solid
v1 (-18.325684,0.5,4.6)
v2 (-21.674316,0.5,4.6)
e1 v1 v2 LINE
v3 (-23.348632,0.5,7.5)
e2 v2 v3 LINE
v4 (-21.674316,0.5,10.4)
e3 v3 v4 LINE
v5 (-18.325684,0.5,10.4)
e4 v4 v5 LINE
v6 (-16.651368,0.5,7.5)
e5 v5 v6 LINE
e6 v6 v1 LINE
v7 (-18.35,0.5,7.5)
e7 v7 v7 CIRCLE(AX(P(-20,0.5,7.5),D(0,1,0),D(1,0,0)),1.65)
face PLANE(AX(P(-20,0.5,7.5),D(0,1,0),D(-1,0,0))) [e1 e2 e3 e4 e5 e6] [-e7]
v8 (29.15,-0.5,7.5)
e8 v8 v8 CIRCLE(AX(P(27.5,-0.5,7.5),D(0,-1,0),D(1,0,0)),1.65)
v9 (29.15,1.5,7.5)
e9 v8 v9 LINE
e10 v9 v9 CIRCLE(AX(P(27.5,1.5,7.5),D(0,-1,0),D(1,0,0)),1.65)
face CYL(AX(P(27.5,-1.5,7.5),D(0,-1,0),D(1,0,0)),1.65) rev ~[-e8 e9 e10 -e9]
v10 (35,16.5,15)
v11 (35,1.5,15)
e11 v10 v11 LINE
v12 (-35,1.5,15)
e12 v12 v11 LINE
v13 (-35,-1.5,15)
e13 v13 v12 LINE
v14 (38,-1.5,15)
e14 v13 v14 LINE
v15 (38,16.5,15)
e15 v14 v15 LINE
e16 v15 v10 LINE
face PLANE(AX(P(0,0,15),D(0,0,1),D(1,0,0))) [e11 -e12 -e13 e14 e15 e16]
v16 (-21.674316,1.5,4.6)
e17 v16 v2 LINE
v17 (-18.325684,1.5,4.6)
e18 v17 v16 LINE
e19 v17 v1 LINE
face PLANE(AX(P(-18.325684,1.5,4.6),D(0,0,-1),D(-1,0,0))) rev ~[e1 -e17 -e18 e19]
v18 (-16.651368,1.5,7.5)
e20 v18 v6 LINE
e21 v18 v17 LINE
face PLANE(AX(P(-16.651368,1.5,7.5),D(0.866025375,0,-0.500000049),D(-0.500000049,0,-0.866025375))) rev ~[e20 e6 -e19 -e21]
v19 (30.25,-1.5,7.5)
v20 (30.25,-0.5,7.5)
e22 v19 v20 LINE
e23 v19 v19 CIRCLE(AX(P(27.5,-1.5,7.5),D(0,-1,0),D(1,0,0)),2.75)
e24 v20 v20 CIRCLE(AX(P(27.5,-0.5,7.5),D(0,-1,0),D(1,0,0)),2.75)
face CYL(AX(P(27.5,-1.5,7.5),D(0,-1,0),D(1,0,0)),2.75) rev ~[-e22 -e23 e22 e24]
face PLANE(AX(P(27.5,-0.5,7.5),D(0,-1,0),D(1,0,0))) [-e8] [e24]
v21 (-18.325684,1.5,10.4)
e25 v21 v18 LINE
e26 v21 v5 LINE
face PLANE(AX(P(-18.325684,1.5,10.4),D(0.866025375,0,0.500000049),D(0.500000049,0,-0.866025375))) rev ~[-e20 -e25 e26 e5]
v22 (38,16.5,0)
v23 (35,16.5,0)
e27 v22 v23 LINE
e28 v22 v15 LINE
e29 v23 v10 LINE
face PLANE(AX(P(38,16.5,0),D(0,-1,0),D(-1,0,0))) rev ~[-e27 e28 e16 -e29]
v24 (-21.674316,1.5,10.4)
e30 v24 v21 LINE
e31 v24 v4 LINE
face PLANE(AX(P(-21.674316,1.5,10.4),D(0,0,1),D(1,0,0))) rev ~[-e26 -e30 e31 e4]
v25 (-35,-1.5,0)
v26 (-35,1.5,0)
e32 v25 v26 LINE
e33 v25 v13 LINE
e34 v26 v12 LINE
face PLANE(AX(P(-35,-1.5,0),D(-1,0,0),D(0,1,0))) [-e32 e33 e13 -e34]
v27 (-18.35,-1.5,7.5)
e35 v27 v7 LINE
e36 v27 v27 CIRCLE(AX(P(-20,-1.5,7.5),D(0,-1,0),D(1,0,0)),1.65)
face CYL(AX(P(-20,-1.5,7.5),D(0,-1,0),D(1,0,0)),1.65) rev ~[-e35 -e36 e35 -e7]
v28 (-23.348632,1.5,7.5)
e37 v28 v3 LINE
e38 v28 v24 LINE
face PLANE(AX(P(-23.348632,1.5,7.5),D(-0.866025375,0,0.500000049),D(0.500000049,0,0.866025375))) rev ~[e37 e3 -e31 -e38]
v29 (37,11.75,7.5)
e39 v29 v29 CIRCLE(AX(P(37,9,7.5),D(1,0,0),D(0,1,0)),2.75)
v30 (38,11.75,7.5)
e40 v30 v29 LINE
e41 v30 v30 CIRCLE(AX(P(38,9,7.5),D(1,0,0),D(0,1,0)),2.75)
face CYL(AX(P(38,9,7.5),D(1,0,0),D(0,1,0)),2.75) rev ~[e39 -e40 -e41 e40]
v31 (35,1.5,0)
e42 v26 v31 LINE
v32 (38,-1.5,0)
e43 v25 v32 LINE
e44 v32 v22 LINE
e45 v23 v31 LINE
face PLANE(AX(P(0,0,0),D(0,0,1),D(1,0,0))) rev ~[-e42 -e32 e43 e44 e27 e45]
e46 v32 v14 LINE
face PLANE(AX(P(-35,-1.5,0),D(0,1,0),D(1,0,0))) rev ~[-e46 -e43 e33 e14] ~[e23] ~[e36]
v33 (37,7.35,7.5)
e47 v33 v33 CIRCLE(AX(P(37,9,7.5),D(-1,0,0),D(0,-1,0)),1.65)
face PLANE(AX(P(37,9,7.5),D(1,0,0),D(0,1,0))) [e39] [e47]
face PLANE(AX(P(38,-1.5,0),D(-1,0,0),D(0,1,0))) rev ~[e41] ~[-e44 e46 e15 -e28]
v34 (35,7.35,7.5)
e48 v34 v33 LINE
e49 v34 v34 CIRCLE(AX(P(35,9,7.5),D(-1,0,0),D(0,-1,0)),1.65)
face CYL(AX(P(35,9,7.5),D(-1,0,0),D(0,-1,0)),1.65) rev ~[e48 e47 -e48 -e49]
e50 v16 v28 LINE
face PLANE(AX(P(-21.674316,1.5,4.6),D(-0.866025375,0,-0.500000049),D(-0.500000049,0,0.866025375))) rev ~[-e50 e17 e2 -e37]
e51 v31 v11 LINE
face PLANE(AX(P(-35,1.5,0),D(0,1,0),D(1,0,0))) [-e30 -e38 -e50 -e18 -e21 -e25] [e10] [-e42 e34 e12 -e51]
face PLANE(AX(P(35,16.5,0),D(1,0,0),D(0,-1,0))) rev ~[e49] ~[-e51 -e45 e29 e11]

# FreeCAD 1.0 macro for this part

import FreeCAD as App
import Part
import Sketcher

V = App.Vector
Q = App.Units.Quantity

doc = App.newDocument("Part")
body = doc.addObject("PartDesign::Body", "Body")

# Sketch on XY plane
sketch1 = body.newObject("Sketcher::SketchObject", "Sketch")
sketch1.AttachmentSupport = (doc.getObject("XY_Plane"), [""])
sketch1.MapMode = "FlatFace"
sketch1.addGeometry([
    Part.LineSegment(V(-35, 1.5, 0), V(-35, -1.5, 0)),  # 0
    Part.LineSegment(V(-35, -1.5, 0), V(38, -1.5, 0)),  # 1
    Part.LineSegment(V(38, -1.5, 0), V(38, 16.5, 0)),  # 2
    Part.LineSegment(V(38, 16.5, 0), V(35, 16.5, 0)),  # 3
    Part.LineSegment(V(35, 16.5, 0), V(35, 1.5, 0)),  # 4
    Part.LineSegment(V(35, 1.5, 0), V(-35, 1.5, 0)),  # 5
], False)
sketch1.addConstraint([
    Sketcher.Constraint("Coincident", 0, 2, 1, 1),
    Sketcher.Constraint("Coincident", 1, 2, 2, 1),
    Sketcher.Constraint("Coincident", 2, 2, 3, 1),
    Sketcher.Constraint("Coincident", 3, 2, 4, 1),
    Sketcher.Constraint("Coincident", 4, 2, 5, 1),
    Sketcher.Constraint("Coincident", 5, 2, 0, 1),
    Sketcher.Constraint("Vertical", 0),
    Sketcher.Constraint("Horizontal", 1),
    Sketcher.Constraint("Vertical", 2),
    Sketcher.Constraint("Horizontal", 3),
    Sketcher.Constraint("Vertical", 4),
    Sketcher.Constraint("Horizontal", 5),
    Sketcher.Constraint("Symmetric", 0, 2, 4, 2, -1, 1),
    Sketcher.Constraint("Equal", 3, 0),
    Sketcher.Constraint("DistanceX", 1, 1, 1, 2, Q("73 mm")),
    Sketcher.Constraint("DistanceX", 3, 2, 3, 1, Q("3 mm")),
    Sketcher.Constraint("DistanceY", 2, 1, 2, 2, Q("18 mm")),
])
pad1 = body.newObject("PartDesign::Pad", "Pad")
pad1.Profile = sketch1
pad1.Length = 15

# Sketch on YZ plane
sketch2 = body.newObject("Sketcher::SketchObject", "Sketch001")
sketch2.AttachmentSupport = (doc.getObject("YZ_Plane"), [""])
sketch2.MapMode = "FlatFace"
sketch2.AttachmentOffset = App.Placement(V(0, 0, 35), App.Rotation())
sketch2.addGeometry(Part.Circle(V(9, 7.5, 0), V(0, 0, 1), 1.65), False)
sketch2.addConstraint([
    Sketcher.Constraint("Diameter", 0, Q("3.3 mm")),
    Sketcher.Constraint("DistanceX", -1, 1, 0, 3, Q("9 mm")),
    Sketcher.Constraint("DistanceY", -1, 1, 0, 3, Q("7.5 mm")),
])
pocket1 = body.newObject("PartDesign::Pocket", "Pocket")
pocket1.Profile = sketch2
pocket1.Length = 25
pocket1.Reversed = True

# Sketch on YZ plane
sketch3 = body.newObject("Sketcher::SketchObject", "Sketch002")
sketch3.AttachmentSupport = (doc.getObject("YZ_Plane"), [""])
sketch3.MapMode = "FlatFace"
sketch3.AttachmentOffset = App.Placement(V(0, 0, 38), App.Rotation())
sketch3.addGeometry(Part.Circle(V(9, 7.5, 0), V(0, 0, 1), 2.75), False)
sketch3.addConstraint([
    Sketcher.Constraint("Diameter", 0, Q("5.5 mm")),
    Sketcher.Constraint("DistanceX", -1, 1, 0, 3, Q("9 mm")),
    Sketcher.Constraint("DistanceY", -1, 1, 0, 3, Q("7.5 mm")),
])
pocket2 = body.newObject("PartDesign::Pocket", "Pocket001")
pocket2.Profile = sketch3
pocket2.Length = 1

# Sketch on XZ plane
sketch4 = body.newObject("Sketcher::SketchObject", "Sketch003")
sketch4.AttachmentSupport = (doc.getObject("XZ_Plane"), [""])
sketch4.MapMode = "FlatFace"
sketch4.AttachmentOffset = App.Placement(V(0, 0, 1.5), App.Rotation())
sketch4.addGeometry(Part.Circle(V(-20, 7.5, 0), V(0, 0, 1), 1.65), False)
sketch4.addConstraint([
    Sketcher.Constraint("Diameter", 0, Q("3.3 mm")),
    Sketcher.Constraint("DistanceX", 0, 3, -1, 1, Q("20 mm")),
    Sketcher.Constraint("DistanceY", -1, 1, 0, 3, Q("7.5 mm")),
])
pocket3 = body.newObject("PartDesign::Pocket", "Pocket002")
pocket3.Profile = sketch4
pocket3.Type = "ThroughAll"

# Sketch on XZ plane
sketch5 = body.newObject("Sketcher::SketchObject", "Sketch004")
sketch5.AttachmentSupport = (doc.getObject("XZ_Plane"), [""])
sketch5.MapMode = "FlatFace"
sketch5.AttachmentOffset = App.Placement(V(0, 0, 1.5), App.Rotation())
sketch5.addGeometry(Part.Circle(V(27.5, 7.5, 0), V(0, 0, 1), 1.65), False)
sketch5.addConstraint([
    Sketcher.Constraint("Diameter", 0, Q("3.3 mm")),
    Sketcher.Constraint("DistanceX", -1, 1, 0, 3, Q("27.5 mm")),
    Sketcher.Constraint("DistanceY", -1, 1, 0, 3, Q("7.5 mm")),
])
pocket4 = body.newObject("PartDesign::Pocket", "Pocket003")
pocket4.Profile = sketch5
pocket4.Type = "ThroughAll"

# Sketch on XZ plane
sketch6 = body.newObject("Sketcher::SketchObject", "Sketch005")
sketch6.AttachmentSupport = (doc.getObject("XZ_Plane"), [""])
sketch6.MapMode = "FlatFace"
sketch6.AttachmentOffset = App.Placement(V(0, 0, 1.5), App.Rotation())
sketch6.addGeometry([
    Part.Circle(V(27.5, 7.5, 0), V(0, 0, 1), 2.75),
    Part.Circle(V(27.5, 7.5, 0), V(0, 0, 1), 1.65),
], False)
sketch6.addConstraint([
    Sketcher.Constraint("Coincident", 1, 3, 0, 3),
    Sketcher.Constraint("Diameter", 0, Q("5.5 mm")),
    Sketcher.Constraint("Diameter", 1, Q("3.3 mm")),
    Sketcher.Constraint("DistanceX", -1, 1, 0, 3, Q("27.5 mm")),
    Sketcher.Constraint("DistanceY", -1, 1, 0, 3, Q("7.5 mm")),
])
pocket5 = body.newObject("PartDesign::Pocket", "Pocket004")
pocket5.Profile = sketch6
pocket5.Length = 1

# Sketch on XZ plane
sketch7 = body.newObject("Sketcher::SketchObject", "Sketch006")
sketch7.AttachmentSupport = (doc.getObject("XZ_Plane"), [""])
sketch7.MapMode = "FlatFace"
sketch7.AttachmentOffset = App.Placement(V(0, 0, -1.5), App.Rotation())
sketch7.addGeometry([
    Part.LineSegment(V(-21.674316, 10.4, 0), V(-18.325684, 10.4, 0)),  # 0
    Part.LineSegment(V(-18.325684, 10.4, 0), V(-16.651368, 7.5, 0)),  # 1
    Part.LineSegment(V(-16.651368, 7.5, 0), V(-18.325684, 4.6, 0)),  # 2
    Part.LineSegment(V(-18.325684, 4.6, 0), V(-21.674316, 4.6, 0)),  # 3
    Part.LineSegment(V(-21.674316, 4.6, 0), V(-23.348632, 7.5, 0)),  # 4
    Part.LineSegment(V(-23.348632, 7.5, 0), V(-21.674316, 10.4, 0)),  # 5
    Part.Circle(V(-20, 7.5, 0), V(0, 0, 1), 1.65),  # 6
], False)
sketch7.addConstraint([
    Sketcher.Constraint("Coincident", 0, 2, 1, 1),
    Sketcher.Constraint("Coincident", 1, 2, 2, 1),
    Sketcher.Constraint("Coincident", 2, 2, 3, 1),
    Sketcher.Constraint("Coincident", 3, 2, 4, 1),
    Sketcher.Constraint("Coincident", 4, 2, 5, 1),
    Sketcher.Constraint("Coincident", 5, 2, 0, 1),
    Sketcher.Constraint("Horizontal", 0),
    Sketcher.Constraint("Horizontal", 3),
    Sketcher.Constraint("Parallel", 1, 4),
    Sketcher.Constraint("Parallel", 2, 5),
    Sketcher.Constraint("Horizontal", 6, 3, 1, 2),
    Sketcher.Constraint("Horizontal", 1, 2, 4, 2),
    Sketcher.Constraint("Vertical", 0, 2, 2, 2),
    Sketcher.Constraint("Vertical", 3, 2, 5, 2),
    Sketcher.Constraint("Diameter", 6, Q("3.3 mm")),
    Sketcher.Constraint("Angle", 1, Q("-59.999997 deg")),
    Sketcher.Constraint("DistanceX", 6, 3, -1, 1, Q("20 mm")),
    Sketcher.Constraint("DistanceY", -1, 1, 6, 3, Q("7.5 mm")),
    Sketcher.Constraint("DistanceY", -1, 1, 0, 2, Q("10.4 mm")),
    Sketcher.Constraint("DistanceX", 0, 1, 0, 2, Q("3.348632 mm")),
    Sketcher.Constraint("DistanceX", 1, 2, -1, 1, Q("16.651368 mm")),
])
pocket6 = body.newObject("PartDesign::Pocket", "Pocket005")
pocket6.Profile = sketch7
pocket6.Length = 1
pocket6.Reversed = True

doc.recompute()
